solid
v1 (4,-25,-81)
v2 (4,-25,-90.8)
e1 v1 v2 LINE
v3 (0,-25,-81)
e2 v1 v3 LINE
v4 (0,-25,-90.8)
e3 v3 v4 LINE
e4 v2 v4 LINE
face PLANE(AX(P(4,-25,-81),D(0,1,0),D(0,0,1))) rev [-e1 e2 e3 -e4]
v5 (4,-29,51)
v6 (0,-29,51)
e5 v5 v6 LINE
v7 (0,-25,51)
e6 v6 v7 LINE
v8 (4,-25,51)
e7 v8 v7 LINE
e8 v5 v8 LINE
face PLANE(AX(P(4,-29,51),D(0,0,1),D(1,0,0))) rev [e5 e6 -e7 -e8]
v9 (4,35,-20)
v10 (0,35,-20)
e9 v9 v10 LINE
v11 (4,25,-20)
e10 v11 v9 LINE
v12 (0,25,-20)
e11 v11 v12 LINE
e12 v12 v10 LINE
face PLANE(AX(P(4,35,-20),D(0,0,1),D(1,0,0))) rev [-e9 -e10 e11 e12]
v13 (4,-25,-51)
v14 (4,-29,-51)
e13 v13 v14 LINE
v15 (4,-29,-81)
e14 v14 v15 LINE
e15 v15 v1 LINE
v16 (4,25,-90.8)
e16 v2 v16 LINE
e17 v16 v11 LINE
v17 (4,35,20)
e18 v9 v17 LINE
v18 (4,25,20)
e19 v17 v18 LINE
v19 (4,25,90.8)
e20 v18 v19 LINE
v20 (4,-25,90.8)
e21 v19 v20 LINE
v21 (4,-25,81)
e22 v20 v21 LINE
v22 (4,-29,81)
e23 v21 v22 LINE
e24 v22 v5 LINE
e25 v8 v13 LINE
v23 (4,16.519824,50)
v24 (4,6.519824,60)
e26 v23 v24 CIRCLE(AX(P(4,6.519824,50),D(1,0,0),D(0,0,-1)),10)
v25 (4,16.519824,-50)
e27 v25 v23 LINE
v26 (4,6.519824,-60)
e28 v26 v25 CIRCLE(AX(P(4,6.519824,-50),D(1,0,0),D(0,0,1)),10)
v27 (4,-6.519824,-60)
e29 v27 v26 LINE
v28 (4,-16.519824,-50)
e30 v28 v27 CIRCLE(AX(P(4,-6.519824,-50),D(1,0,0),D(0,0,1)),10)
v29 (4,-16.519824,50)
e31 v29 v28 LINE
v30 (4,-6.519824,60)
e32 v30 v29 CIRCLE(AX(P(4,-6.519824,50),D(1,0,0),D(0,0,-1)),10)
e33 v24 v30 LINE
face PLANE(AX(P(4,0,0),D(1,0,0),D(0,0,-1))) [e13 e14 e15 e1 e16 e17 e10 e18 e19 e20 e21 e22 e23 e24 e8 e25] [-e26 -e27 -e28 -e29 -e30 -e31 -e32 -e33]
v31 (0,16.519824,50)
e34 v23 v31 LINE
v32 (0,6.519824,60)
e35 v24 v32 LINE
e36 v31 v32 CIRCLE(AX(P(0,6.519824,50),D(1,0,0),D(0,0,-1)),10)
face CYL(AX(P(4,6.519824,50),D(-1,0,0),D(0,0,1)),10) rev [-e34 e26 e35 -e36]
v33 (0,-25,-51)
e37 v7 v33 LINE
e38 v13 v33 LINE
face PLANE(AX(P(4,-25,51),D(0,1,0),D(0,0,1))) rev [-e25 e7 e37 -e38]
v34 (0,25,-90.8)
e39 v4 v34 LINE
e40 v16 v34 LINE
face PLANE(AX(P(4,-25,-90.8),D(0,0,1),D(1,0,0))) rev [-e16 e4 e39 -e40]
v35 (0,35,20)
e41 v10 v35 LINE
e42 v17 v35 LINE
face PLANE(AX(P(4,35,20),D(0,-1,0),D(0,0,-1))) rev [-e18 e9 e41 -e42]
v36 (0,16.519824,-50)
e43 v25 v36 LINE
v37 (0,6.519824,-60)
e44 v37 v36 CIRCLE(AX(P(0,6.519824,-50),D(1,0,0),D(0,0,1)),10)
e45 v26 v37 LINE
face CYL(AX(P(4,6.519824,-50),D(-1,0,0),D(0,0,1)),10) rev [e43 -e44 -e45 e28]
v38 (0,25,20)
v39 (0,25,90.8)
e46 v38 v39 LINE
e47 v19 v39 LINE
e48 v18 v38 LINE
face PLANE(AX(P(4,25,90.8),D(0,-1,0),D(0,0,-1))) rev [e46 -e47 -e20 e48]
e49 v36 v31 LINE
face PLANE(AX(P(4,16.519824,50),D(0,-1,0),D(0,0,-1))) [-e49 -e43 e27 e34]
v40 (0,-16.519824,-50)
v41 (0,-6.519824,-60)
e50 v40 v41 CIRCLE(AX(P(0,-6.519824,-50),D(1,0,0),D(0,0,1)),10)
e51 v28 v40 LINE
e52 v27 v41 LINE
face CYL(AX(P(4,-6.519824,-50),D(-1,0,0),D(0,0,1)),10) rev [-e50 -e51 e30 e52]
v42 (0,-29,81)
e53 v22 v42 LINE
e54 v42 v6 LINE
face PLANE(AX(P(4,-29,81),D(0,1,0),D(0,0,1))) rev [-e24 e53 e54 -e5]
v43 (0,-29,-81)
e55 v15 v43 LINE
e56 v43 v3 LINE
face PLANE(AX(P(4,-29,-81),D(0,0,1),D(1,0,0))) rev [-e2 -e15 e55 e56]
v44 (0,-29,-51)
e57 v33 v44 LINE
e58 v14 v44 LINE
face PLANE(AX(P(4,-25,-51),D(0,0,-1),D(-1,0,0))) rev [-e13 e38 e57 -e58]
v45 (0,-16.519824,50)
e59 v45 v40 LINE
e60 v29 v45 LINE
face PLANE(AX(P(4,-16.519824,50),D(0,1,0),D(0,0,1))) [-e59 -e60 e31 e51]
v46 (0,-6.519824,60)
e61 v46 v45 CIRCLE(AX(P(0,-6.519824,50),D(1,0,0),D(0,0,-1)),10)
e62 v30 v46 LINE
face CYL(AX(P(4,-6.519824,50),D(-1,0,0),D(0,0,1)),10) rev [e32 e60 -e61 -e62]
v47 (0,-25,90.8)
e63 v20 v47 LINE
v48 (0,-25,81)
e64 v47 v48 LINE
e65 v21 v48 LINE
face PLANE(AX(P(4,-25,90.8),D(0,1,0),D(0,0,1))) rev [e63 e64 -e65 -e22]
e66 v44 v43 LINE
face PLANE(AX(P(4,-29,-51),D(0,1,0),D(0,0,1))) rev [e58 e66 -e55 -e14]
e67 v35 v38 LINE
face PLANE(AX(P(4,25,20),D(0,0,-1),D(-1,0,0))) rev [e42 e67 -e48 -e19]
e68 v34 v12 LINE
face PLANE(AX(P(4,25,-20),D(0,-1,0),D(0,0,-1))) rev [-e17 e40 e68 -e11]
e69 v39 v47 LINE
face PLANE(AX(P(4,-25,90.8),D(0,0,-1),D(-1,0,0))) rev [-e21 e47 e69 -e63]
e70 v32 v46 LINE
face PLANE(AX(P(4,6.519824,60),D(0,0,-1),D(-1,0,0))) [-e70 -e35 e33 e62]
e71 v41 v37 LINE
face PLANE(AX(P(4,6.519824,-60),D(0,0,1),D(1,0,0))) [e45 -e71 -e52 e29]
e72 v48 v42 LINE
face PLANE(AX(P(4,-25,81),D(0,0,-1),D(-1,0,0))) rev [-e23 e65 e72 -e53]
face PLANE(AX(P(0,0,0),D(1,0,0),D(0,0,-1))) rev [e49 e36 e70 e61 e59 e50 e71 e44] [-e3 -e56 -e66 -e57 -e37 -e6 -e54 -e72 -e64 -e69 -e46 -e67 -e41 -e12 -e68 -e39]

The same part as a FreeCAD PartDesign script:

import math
import FreeCAD as App
import Part
import Sketcher

doc = App.newDocument("Part")
params = doc.addObject("Spreadsheet::Sheet", "Params")
for row, (alias, value) in enumerate([
    ("sketch1_radius", "10 mm"),
    ("sketch1_width", "4 mm"),
    ("sketch1_width2", "50 mm"),
    ("sketch1_width3", "10 mm"),
    ("sketch1_height", "30 mm"),
    ("pad1_length", "4 mm"),
], start=1):
    params.set(f"A{row}", alias)
    params.set(f"B{row}", "=" + value)
    params.setAlias(f"B{row}", alias)

body = doc.addObject("PartDesign::Body", "Body")

sketch1 = doc.addObject("Sketcher::SketchObject", "Sketch")
body.addObject(sketch1)
sketch1.AttachmentSupport = (doc.YZ_Plane, [""])
sketch1.MapMode = "FlatFace"
sketch1.addGeometry([
    Part.LineSegment(App.Vector(-25, 81, 0), App.Vector(-29, 81, 0)),
    Part.LineSegment(App.Vector(-29, 81, 0), App.Vector(-29, 51, 0)),
    Part.LineSegment(App.Vector(-29, 51, 0), App.Vector(-25, 51, 0)),
    Part.LineSegment(App.Vector(-25, 51, 0), App.Vector(-25, -51, 0)),
    Part.LineSegment(App.Vector(-25, -51, 0), App.Vector(-29, -51, 0)),
    Part.LineSegment(App.Vector(-29, -51, 0), App.Vector(-29, -81, 0)),
    Part.LineSegment(App.Vector(-29, -81, 0), App.Vector(-25, -81, 0)),
    Part.LineSegment(App.Vector(-25, -81, 0), App.Vector(-25, -90.8, 0)),
    Part.LineSegment(App.Vector(-25, -90.8, 0), App.Vector(25, -90.8, 0)),
    Part.LineSegment(App.Vector(25, -90.8, 0), App.Vector(25, -20, 0)),
    Part.LineSegment(App.Vector(25, -20, 0), App.Vector(35, -20, 0)),
    Part.LineSegment(App.Vector(35, -20, 0), App.Vector(35, 20, 0)),
    Part.LineSegment(App.Vector(35, 20, 0), App.Vector(25, 20, 0)),
    Part.LineSegment(App.Vector(25, 20, 0), App.Vector(25, 90.8, 0)),
    Part.LineSegment(App.Vector(25, 90.8, 0), App.Vector(-25, 90.8, 0)),
    Part.LineSegment(App.Vector(-25, 90.8, 0), App.Vector(-25, 81, 0)),
    Part.ArcOfCircle(Part.Circle(App.Vector(6.519824, 50, 0), App.Vector(0, 0, 1), 10), math.radians(0), math.radians(90)),
    Part.LineSegment(App.Vector(16.519824, 50, 0), App.Vector(16.519824, -50, 0)),
    Part.ArcOfCircle(Part.Circle(App.Vector(6.519824, -50, 0), App.Vector(0, 0, 1), 10), math.radians(-90), math.radians(0)),
    Part.LineSegment(App.Vector(6.519824, -60, 0), App.Vector(-6.519824, -60, 0)),
    Part.ArcOfCircle(Part.Circle(App.Vector(-6.519824, -50, 0), App.Vector(0, 0, 1), 10), math.radians(-180), math.radians(-90)),
    Part.LineSegment(App.Vector(-16.519824, -50, 0), App.Vector(-16.519824, 50, 0)),
    Part.ArcOfCircle(Part.Circle(App.Vector(-6.519824, 50, 0), App.Vector(0, 0, 1), 10), math.radians(90), math.radians(180)),
    Part.LineSegment(App.Vector(-6.519824, 60, 0), App.Vector(6.519824, 60, 0)),
], False)
sketch1.addConstraint([
    Sketcher.Constraint("Coincident", 0, 2, 1, 1),
    Sketcher.Constraint("Coincident", 1, 2, 2, 1),
    Sketcher.Constraint("Coincident", 2, 2, 3, 1),
    Sketcher.Constraint("Coincident", 3, 2, 4, 1),
    Sketcher.Constraint("Coincident", 4, 2, 5, 1),
    Sketcher.Constraint("Coincident", 5, 2, 6, 1),
    Sketcher.Constraint("Coincident", 6, 2, 7, 1),
    Sketcher.Constraint("Coincident", 7, 2, 8, 1),
    Sketcher.Constraint("Coincident", 8, 2, 9, 1),
    Sketcher.Constraint("Coincident", 9, 2, 10, 1),
    Sketcher.Constraint("Coincident", 10, 2, 11, 1),
    Sketcher.Constraint("Coincident", 11, 2, 12, 1),
    Sketcher.Constraint("Coincident", 12, 2, 13, 1),
    Sketcher.Constraint("Coincident", 13, 2, 14, 1),
    Sketcher.Constraint("Coincident", 14, 2, 15, 1),
    Sketcher.Constraint("Coincident", 15, 2, 0, 1),
    Sketcher.Constraint("Tangent", 16, 1, 17, 1),
    Sketcher.Constraint("Tangent", 17, 2, 18, 2),
    Sketcher.Constraint("Tangent", 18, 1, 19, 1),
    Sketcher.Constraint("Tangent", 19, 2, 20, 2),
    Sketcher.Constraint("Tangent", 20, 1, 21, 1),
    Sketcher.Constraint("Tangent", 21, 2, 22, 2),
    Sketcher.Constraint("Tangent", 22, 1, 23, 1),
    Sketcher.Constraint("Tangent", 23, 2, 16, 2),
    Sketcher.Constraint("Horizontal", 0),
    Sketcher.Constraint("Vertical", 1),
    Sketcher.Constraint("Horizontal", 2),
    Sketcher.Constraint("Vertical", 3),
    Sketcher.Constraint("Horizontal", 4),
    Sketcher.Constraint("Vertical", 5),
    Sketcher.Constraint("Horizontal", 6),
    Sketcher.Constraint("Vertical", 7),
    Sketcher.Constraint("Horizontal", 8),
    Sketcher.Constraint("Vertical", 9),
    Sketcher.Constraint("Horizontal", 10),
    Sketcher.Constraint("Vertical", 11),
    Sketcher.Constraint("Horizontal", 12),
    Sketcher.Constraint("Vertical", 13),
    Sketcher.Constraint("Horizontal", 14),
    Sketcher.Constraint("Vertical", 15),
    Sketcher.Constraint("Vertical", 17),
    Sketcher.Constraint("Horizontal", 19),
    Sketcher.Constraint("Vertical", 21),
    Sketcher.Constraint("Horizontal", 23),
    Sketcher.Constraint("Equal", 16, 18),
    Sketcher.Constraint("Equal", 18, 20),
    Sketcher.Constraint("Equal", 20, 22),
    Sketcher.Constraint("Symmetric", 16, 3, 20, 3, -1, 1),
    Sketcher.Constraint("Symmetric", 7, 2, 13, 2, -1, 1),
    Sketcher.Constraint("Symmetric", 1, 2, 4, 2, -1),
    Sketcher.Constraint("Symmetric", 9, 2, 12, 2, -1),
    Sketcher.Constraint("Symmetric", 6, 2, 15, 2, -1),
    Sketcher.Constraint("Vertical", 3, 2, 6, 2),
    Sketcher.Constraint("Radius", 16, 10.0),
    Sketcher.Constraint("DistanceX", 0, 2, 0, 1, 4.0),
    Sketcher.Constraint("DistanceX", 8, 1, 8, 2, 50.0),
    Sketcher.Constraint("DistanceX", 10, 1, 10, 2, 10.0),
    Sketcher.Constraint("DistanceY", 1, 2, 1, 1, 30.0),
    Sketcher.Constraint("DistanceY", 3, 2, 3, 1, 102.0),
    Sketcher.Constraint("DistanceY", 11, 1, 11, 2, 40.0),
    Sketcher.Constraint("DistanceY", 17, 2, 17, 1, 100.0),
    Sketcher.Constraint("DistanceY", 7, 2, 7, 1, 9.8),
    Sketcher.Constraint("DistanceX", 19, 2, 19, 1, 13.039648),
])
sketch1.setExpression("Constraints[53]", "Params.sketch1_radius")
sketch1.setExpression("Constraints[54]", "Params.sketch1_width")
sketch1.setExpression("Constraints[55]", "Params.sketch1_width2")
sketch1.setExpression("Constraints[56]", "Params.sketch1_width3")
sketch1.setExpression("Constraints[57]", "Params.sketch1_height")
pad1 = doc.addObject("PartDesign::Pad", "Pad")
body.addObject(pad1)
pad1.Profile = sketch1
pad1.setExpression("Length", "Params.pad1_length")

doc.recompute()
